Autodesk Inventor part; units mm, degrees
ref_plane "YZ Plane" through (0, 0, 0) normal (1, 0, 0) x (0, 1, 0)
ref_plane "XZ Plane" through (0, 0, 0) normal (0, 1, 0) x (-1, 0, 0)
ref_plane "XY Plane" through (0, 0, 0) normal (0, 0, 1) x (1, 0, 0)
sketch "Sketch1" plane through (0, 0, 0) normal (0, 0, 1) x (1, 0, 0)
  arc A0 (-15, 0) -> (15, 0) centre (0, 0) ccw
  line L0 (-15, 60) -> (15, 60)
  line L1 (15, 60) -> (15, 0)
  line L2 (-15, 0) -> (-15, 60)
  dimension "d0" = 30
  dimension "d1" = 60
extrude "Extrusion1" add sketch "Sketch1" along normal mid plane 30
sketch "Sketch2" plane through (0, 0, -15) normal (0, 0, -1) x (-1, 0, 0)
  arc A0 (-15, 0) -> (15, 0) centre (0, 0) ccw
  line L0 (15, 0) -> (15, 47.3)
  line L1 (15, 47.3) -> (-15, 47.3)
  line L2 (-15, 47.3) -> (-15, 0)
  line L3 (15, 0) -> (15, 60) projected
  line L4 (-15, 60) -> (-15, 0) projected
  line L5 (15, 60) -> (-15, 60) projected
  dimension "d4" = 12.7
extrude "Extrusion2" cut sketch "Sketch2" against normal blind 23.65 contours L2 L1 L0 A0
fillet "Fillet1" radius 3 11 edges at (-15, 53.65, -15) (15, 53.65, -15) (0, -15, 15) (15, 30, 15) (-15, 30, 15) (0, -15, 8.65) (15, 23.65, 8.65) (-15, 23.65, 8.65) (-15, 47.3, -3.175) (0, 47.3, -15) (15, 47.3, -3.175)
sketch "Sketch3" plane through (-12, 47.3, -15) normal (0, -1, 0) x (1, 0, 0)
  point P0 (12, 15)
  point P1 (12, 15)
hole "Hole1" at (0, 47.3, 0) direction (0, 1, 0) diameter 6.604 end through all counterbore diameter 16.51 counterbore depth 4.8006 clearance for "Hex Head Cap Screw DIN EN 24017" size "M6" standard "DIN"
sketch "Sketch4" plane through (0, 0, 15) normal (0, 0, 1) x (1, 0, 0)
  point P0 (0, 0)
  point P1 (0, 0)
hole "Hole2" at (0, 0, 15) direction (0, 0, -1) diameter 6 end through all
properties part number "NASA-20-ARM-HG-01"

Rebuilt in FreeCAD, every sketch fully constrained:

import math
import FreeCAD as App
import Part
import Sketcher
from FreeCAD import Vector
Q = App.Units.Quantity


def edges_at(feature, points):
    """Names of the edges that pass closest to the given points."""
    edges = feature.Shape.Edges
    near = lambda p: min(range(len(edges)), key=lambda i: edges[i].distToShape(Part.Vertex(*p))[0])
    return sorted({f"Edge{near(p) + 1}" for p in points})

doc = App.newDocument("Part")
body = doc.addObject("PartDesign::Body", "Body")

# Sketch on XY plane
sketch1 = doc.addObject("Sketcher::SketchObject", "Sketch")
body.addObject(sketch1)
sketch1.AttachmentSupport = (doc.XY_Plane, [""])
sketch1.MapMode = "FlatFace"
sketch1.addGeometry(Part.LineSegment(Vector(-15, 60, 0), Vector(-15, 0, 0)), False)
sketch1.addGeometry(Part.ArcOfCircle(Part.Circle(Vector(0, 0, 0), Vector(0, 0, 1), 15), math.radians(180), math.radians(360)), False)
sketch1.addGeometry(Part.LineSegment(Vector(15, 0, 0), Vector(15, 60, 0)), False)
sketch1.addGeometry(Part.LineSegment(Vector(15, 60, 0), Vector(-15, 60, 0)), False)
sketch1.addConstraint(Sketcher.Constraint("Tangent", 0, 2, 1, 1))
sketch1.addConstraint(Sketcher.Constraint("Tangent", 1, 2, 2, 1))
sketch1.addConstraint(Sketcher.Constraint("Coincident", 2, 2, 3, 1))
sketch1.addConstraint(Sketcher.Constraint("Coincident", 3, 2, 0, 1))
sketch1.addConstraint(Sketcher.Constraint("Vertical", 0))
sketch1.addConstraint(Sketcher.Constraint("Vertical", 2))
sketch1.addConstraint(Sketcher.Constraint("Horizontal", 3))
sketch1.addConstraint(Sketcher.Constraint("Coincident", 1, 3, -1, 1))
sketch1.addConstraint(Sketcher.Constraint("Radius", 1, Q("15 mm")))
sketch1.addConstraint(Sketcher.Constraint("DistanceY", 0, 2, 0, 1, Q("60 mm")))
pad1 = doc.addObject("PartDesign::Pad", "Pad")
body.addObject(pad1)
pad1.Profile = sketch1
pad1.Length = 30
pad1.Midplane = True

# Sketch on XY plane
sketch2 = doc.addObject("Sketcher::SketchObject", "Sketch001")
body.addObject(sketch2)
sketch2.AttachmentSupport = (doc.XY_Plane, [""])
sketch2.MapMode = "FlatFace"
sketch2.AttachmentOffset = App.Placement(Vector(0, 0, -15), App.Rotation())
sketch2.addGeometry(Part.LineSegment(Vector(15, 47, 0), Vector(15, 0, 0)), False)
sketch2.addGeometry(Part.ArcOfCircle(Part.Circle(Vector(0, 0, 0), Vector(0, 0, 1), 15), math.radians(180), math.radians(360)), False)
sketch2.addGeometry(Part.LineSegment(Vector(-15, 0, 0), Vector(-15, 47, 0)), False)
sketch2.addGeometry(Part.LineSegment(Vector(-15, 47, 0), Vector(15, 47, 0)), False)
sketch2.addConstraint(Sketcher.Constraint("Tangent", 0, 2, 1, 2))
sketch2.addConstraint(Sketcher.Constraint("Tangent", 1, 1, 2, 1))
sketch2.addConstraint(Sketcher.Constraint("Coincident", 2, 2, 3, 1))
sketch2.addConstraint(Sketcher.Constraint("Coincident", 3, 2, 0, 1))
sketch2.addConstraint(Sketcher.Constraint("Vertical", 0))
sketch2.addConstraint(Sketcher.Constraint("Vertical", 2))
sketch2.addConstraint(Sketcher.Constraint("Horizontal", 3))
sketch2.addConstraint(Sketcher.Constraint("Coincident", 1, 3, -1, 1))
sketch2.addConstraint(Sketcher.Constraint("Radius", 1, Q("15 mm")))
sketch2.addConstraint(Sketcher.Constraint("DistanceY", 0, 2, 0, 1, Q("47.3 mm")))
pocket1 = doc.addObject("PartDesign::Pocket", "Pocket")
body.addObject(pocket1)
pocket1.Profile = sketch2
pocket1.Length = 23.65
pocket1.Reversed = True
doc.recompute()

fillet = doc.addObject("PartDesign::Fillet", "Fillet")
body.addObject(fillet)
fillet.Base = (pocket1, edges_at(pocket1, [
    (-15, 53.65, -15),
    (15, 53.65, -15),
    (0, -15, 15),
    (15, 30, 15),
    (-15, 30, 15),
    (0, -15, 8.65),
    (15, 23.65, 8.65),
    (-15, 23.65, 8.65),
    (-15, 47.3, -3.175),
    (0, 47.3, -15),
    (15, 47.3, -3.175),
]))
fillet.Radius = 3

# Sketch on XZ plane
sketch3 = doc.addObject("Sketcher::SketchObject", "Sketch002")
body.addObject(sketch3)
sketch3.AttachmentSupport = (doc.XZ_Plane, [""])
sketch3.MapMode = "FlatFace"
sketch3.AttachmentOffset = App.Placement(Vector(0, 0, -47.3), App.Rotation())
sketch3.addGeometry(Part.Circle(Vector(0, 0, 0), Vector(0, 0, 1), 3.3), False)
sketch3.addConstraint(Sketcher.Constraint("Coincident", 0, 3, -1, 1))
sketch3.addConstraint(Sketcher.Constraint("Diameter", 0, Q("6.604 mm")))
doc.recompute()
hole = doc.addObject("PartDesign::Hole", "Hole")
body.addObject(hole)
hole.Profile = sketch3
hole.ThreadType = "None"
hole.Diameter = 6.604
hole.DepthType = "ThroughAll"
hole.HoleCutType = "Counterbore"
hole.HoleCutDiameter = 16.51
hole.HoleCutDepth = 4.8006

# Sketch on XY plane
sketch4 = doc.addObject("Sketcher::SketchObject", "Sketch003")
body.addObject(sketch4)
sketch4.AttachmentSupport = (doc.XY_Plane, [""])
sketch4.MapMode = "FlatFace"
sketch4.AttachmentOffset = App.Placement(Vector(0, 0, 15), App.Rotation())
sketch4.addGeometry(Part.Circle(Vector(0, 0, 0), Vector(0, 0, 1), 3), False)
sketch4.addConstraint(Sketcher.Constraint("Coincident", 0, 3, -1, 1))
sketch4.addConstraint(Sketcher.Constraint("Diameter", 0, Q("6 mm")))
doc.recompute()
hole2 = doc.addObject("PartDesign::Hole", "Hole001")
body.addObject(hole2)
hole2.Profile = sketch4
hole2.ThreadType = "None"
hole2.Diameter = 6
hole2.DepthType = "ThroughAll"

doc.recompute()
